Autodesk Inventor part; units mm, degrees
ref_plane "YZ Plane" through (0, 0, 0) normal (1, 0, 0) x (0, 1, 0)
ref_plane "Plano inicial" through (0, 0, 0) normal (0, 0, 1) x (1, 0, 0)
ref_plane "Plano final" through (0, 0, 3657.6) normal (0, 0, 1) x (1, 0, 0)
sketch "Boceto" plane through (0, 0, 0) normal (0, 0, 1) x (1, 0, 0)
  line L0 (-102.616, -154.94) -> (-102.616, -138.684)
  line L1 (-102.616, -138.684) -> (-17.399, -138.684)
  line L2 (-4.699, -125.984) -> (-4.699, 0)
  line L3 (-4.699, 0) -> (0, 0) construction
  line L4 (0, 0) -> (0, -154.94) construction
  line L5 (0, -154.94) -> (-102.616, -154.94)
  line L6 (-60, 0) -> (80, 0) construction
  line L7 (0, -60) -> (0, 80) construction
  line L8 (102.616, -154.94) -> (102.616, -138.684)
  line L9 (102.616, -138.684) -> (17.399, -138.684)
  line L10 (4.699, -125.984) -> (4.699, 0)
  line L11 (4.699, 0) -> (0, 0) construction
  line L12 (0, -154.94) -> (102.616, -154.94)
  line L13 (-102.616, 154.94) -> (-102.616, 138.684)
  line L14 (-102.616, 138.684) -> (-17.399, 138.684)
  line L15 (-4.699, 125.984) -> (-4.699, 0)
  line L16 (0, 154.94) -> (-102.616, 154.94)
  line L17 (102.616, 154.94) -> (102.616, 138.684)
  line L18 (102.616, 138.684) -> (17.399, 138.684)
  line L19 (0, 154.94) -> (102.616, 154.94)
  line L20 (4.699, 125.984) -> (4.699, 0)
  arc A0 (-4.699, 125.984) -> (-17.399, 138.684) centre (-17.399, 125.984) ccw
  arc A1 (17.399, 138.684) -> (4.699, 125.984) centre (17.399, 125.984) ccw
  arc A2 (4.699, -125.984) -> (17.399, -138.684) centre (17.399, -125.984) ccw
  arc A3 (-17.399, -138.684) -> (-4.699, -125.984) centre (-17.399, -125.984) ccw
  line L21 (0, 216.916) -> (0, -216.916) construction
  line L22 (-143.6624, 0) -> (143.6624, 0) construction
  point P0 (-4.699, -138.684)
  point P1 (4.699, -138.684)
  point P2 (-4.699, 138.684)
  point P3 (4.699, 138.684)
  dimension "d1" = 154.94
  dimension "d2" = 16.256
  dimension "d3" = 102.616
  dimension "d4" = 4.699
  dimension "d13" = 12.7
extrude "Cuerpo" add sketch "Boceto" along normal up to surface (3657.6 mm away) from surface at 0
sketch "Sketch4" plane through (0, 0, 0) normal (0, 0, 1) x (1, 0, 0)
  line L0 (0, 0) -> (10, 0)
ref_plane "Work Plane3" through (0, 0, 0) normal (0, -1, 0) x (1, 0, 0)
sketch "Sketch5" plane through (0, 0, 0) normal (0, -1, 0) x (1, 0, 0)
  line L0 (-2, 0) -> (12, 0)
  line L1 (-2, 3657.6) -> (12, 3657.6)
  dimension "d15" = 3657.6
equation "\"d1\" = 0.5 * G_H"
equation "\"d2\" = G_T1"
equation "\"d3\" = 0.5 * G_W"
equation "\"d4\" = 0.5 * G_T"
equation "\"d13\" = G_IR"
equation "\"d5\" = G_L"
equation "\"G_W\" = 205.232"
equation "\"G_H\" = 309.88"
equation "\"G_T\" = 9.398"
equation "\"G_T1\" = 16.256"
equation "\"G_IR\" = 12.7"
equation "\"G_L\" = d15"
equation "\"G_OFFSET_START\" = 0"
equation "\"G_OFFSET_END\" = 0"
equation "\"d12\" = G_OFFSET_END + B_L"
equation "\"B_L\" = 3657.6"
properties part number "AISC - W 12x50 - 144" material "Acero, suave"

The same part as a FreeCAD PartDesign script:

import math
import FreeCAD as App
import Part
import Sketcher
Q = App.Units.Quantity

doc = App.newDocument("Part")
body = doc.addObject("PartDesign::Body", "Body")

# Sketch on XY plane
sketch1 = body.newObject("Sketcher::SketchObject", "Sketch")
sketch1.AttachmentSupport = (doc.getObject("XY_Plane"), [""])
sketch1.MapMode = "FlatFace"
sketch1.addGeometry(Part.LineSegment(App.Vector(-103, -139, 0), App.Vector(-103, -155, 0)), False)
sketch1.addGeometry(Part.LineSegment(App.Vector(-103, -155, 0), App.Vector(103, -155, 0)), False)
sketch1.addGeometry(Part.LineSegment(App.Vector(103, -155, 0), App.Vector(103, -139, 0)), False)
sketch1.addGeometry(Part.LineSegment(App.Vector(103, -139, 0), App.Vector(17, -139, 0)), False)
sketch1.addGeometry(Part.ArcOfCircle(Part.Circle(App.Vector(17, -126, 0), App.Vector(0, 0, 1), 13), math.radians(180), math.radians(270)), False)
sketch1.addGeometry(Part.LineSegment(App.Vector(5, -126, 0), App.Vector(5, 126, 0)), False)
sketch1.addGeometry(Part.ArcOfCircle(Part.Circle(App.Vector(17, 126, 0), App.Vector(0, 0, 1), 13), math.radians(90), math.radians(180)), False)
sketch1.addGeometry(Part.LineSegment(App.Vector(17, 139, 0), App.Vector(103, 139, 0)), False)
sketch1.addGeometry(Part.LineSegment(App.Vector(103, 139, 0), App.Vector(103, 155, 0)), False)
sketch1.addGeometry(Part.LineSegment(App.Vector(103, 155, 0), App.Vector(-103, 155, 0)), False)
sketch1.addGeometry(Part.LineSegment(App.Vector(-103, 155, 0), App.Vector(-103, 139, 0)), False)
sketch1.addGeometry(Part.LineSegment(App.Vector(-103, 139, 0), App.Vector(-17, 139, 0)), False)
sketch1.addGeometry(Part.ArcOfCircle(Part.Circle(App.Vector(-17, 126, 0), App.Vector(0, 0, 1), 13), math.radians(0), math.radians(90)), False)
sketch1.addGeometry(Part.LineSegment(App.Vector(-5, 126, 0), App.Vector(-5, -126, 0)), False)
sketch1.addGeometry(Part.ArcOfCircle(Part.Circle(App.Vector(-17, -126, 0), App.Vector(0, 0, 1), 13), math.radians(-90), math.radians(0)), False)
sketch1.addGeometry(Part.LineSegment(App.Vector(-17, -139, 0), App.Vector(-103, -139, 0)), False)
sketch1.addConstraint(Sketcher.Constraint("Coincident", 0, 2, 1, 1))
sketch1.addConstraint(Sketcher.Constraint("Coincident", 1, 2, 2, 1))
sketch1.addConstraint(Sketcher.Constraint("Coincident", 2, 2, 3, 1))
sketch1.addConstraint(Sketcher.Constraint("Tangent", 3, 2, 4, 2))
sketch1.addConstraint(Sketcher.Constraint("Tangent", 4, 1, 5, 1))
sketch1.addConstraint(Sketcher.Constraint("Tangent", 5, 2, 6, 2))
sketch1.addConstraint(Sketcher.Constraint("Tangent", 6, 1, 7, 1))
sketch1.addConstraint(Sketcher.Constraint("Coincident", 7, 2, 8, 1))
sketch1.addConstraint(Sketcher.Constraint("Coincident", 8, 2, 9, 1))
sketch1.addConstraint(Sketcher.Constraint("Coincident", 9, 2, 10, 1))
sketch1.addConstraint(Sketcher.Constraint("Coincident", 10, 2, 11, 1))
sketch1.addConstraint(Sketcher.Constraint("Tangent", 11, 2, 12, 2))
sketch1.addConstraint(Sketcher.Constraint("Tangent", 12, 1, 13, 1))
sketch1.addConstraint(Sketcher.Constraint("Tangent", 13, 2, 14, 2))
sketch1.addConstraint(Sketcher.Constraint("Tangent", 14, 1, 15, 1))
sketch1.addConstraint(Sketcher.Constraint("Coincident", 15, 2, 0, 1))
sketch1.addConstraint(Sketcher.Constraint("Vertical", 0))
sketch1.addConstraint(Sketcher.Constraint("Horizontal", 1))
sketch1.addConstraint(Sketcher.Constraint("Vertical", 2))
sketch1.addConstraint(Sketcher.Constraint("Horizontal", 3))
sketch1.addConstraint(Sketcher.Constraint("Vertical", 5))
sketch1.addConstraint(Sketcher.Constraint("Horizontal", 7))
sketch1.addConstraint(Sketcher.Constraint("Vertical", 8))
sketch1.addConstraint(Sketcher.Constraint("Horizontal", 9))
sketch1.addConstraint(Sketcher.Constraint("Vertical", 10))
sketch1.addConstraint(Sketcher.Constraint("Horizontal", 11))
sketch1.addConstraint(Sketcher.Constraint("Vertical", 13))
sketch1.addConstraint(Sketcher.Constraint("Horizontal", 15))
sketch1.addConstraint(Sketcher.Constraint("Equal", 4, 6))
sketch1.addConstraint(Sketcher.Constraint("Equal", 6, 12))
sketch1.addConstraint(Sketcher.Constraint("Equal", 12, 14))
sketch1.addConstraint(Sketcher.Constraint("Symmetric", 4, 3, 12, 3, -1, 1))
sketch1.addConstraint(Sketcher.Constraint("Symmetric", 0, 2, 8, 2, -1, 1))
sketch1.addConstraint(Sketcher.Constraint("Symmetric", 7, 2, 10, 2, -2))
sketch1.addConstraint(Sketcher.Constraint("Symmetric", 2, 2, 15, 2, -2))
sketch1.addConstraint(Sketcher.Constraint("Radius", 4, Q("0.5 in")))
sketch1.addConstraint(Sketcher.Constraint("DistanceY", 0, 2, 0, 1, Q("0.64 in")))
sketch1.addConstraint(Sketcher.Constraint("DistanceY", 0, 2, -1, 1, Q("6.1 in")))
sketch1.addConstraint(Sketcher.Constraint("DistanceX", 0, 2, -1, 1, Q("4.04 in")))
sketch1.addConstraint(Sketcher.Constraint("DistanceX", -1, 1, 4, 1, Q("0.185 in")))
pad1 = body.newObject("PartDesign::Pad", "Pad")
pad1.Profile = sketch1
pad1.Length = Q("144 in")

doc.recompute()
